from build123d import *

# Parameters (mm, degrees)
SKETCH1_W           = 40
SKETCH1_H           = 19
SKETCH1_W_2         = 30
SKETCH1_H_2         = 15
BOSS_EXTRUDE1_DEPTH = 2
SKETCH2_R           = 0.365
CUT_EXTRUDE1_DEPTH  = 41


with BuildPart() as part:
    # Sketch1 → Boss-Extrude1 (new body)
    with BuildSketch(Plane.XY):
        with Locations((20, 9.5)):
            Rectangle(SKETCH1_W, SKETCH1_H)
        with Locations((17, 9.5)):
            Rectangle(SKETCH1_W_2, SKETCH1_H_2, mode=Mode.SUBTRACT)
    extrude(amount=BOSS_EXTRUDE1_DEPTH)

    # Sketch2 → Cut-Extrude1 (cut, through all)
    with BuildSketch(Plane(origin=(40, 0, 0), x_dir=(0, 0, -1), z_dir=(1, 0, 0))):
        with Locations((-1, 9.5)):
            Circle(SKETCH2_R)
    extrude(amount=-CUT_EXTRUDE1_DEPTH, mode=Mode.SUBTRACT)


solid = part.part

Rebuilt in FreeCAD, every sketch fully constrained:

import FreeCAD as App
import Part
import Sketcher
from FreeCAD import Vector
Q = App.Units.Quantity

doc = App.newDocument("Part")
body = doc.addObject("PartDesign::Body", "Body")

# Sketch on XY plane
sketch1 = doc.addObject("Sketcher::SketchObject", "Sketch")
body.addObject(sketch1)
sketch1.AttachmentSupport = (doc.XY_Plane, [""])
sketch1.MapMode = "FlatFace"
sketch1.addGeometry(Part.LineSegment(Vector(0, 19, 0), Vector(0, 0, 0)), False)
sketch1.addGeometry(Part.LineSegment(Vector(0, 0, 0), Vector(40, 0, 0)), False)
sketch1.addGeometry(Part.LineSegment(Vector(40, 0, 0), Vector(40, 19, 0)), False)
sketch1.addGeometry(Part.LineSegment(Vector(40, 19, 0), Vector(0, 19, 0)), False)
sketch1.addGeometry(Part.LineSegment(Vector(32, 2, 0), Vector(2, 2, 0)), False)
sketch1.addGeometry(Part.LineSegment(Vector(2, 2, 0), Vector(2, 17, 0)), False)
sketch1.addGeometry(Part.LineSegment(Vector(2, 17, 0), Vector(32, 17, 0)), False)
sketch1.addGeometry(Part.LineSegment(Vector(32, 17, 0), Vector(32, 2, 0)), False)
sketch1.addConstraint(Sketcher.Constraint("Coincident", 0, 2, 1, 1))
sketch1.addConstraint(Sketcher.Constraint("Coincident", 1, 2, 2, 1))
sketch1.addConstraint(Sketcher.Constraint("Coincident", 2, 2, 3, 1))
sketch1.addConstraint(Sketcher.Constraint("Coincident", 3, 2, 0, 1))
sketch1.addConstraint(Sketcher.Constraint("Coincident", 4, 2, 5, 1))
sketch1.addConstraint(Sketcher.Constraint("Coincident", 5, 2, 6, 1))
sketch1.addConstraint(Sketcher.Constraint("Coincident", 6, 2, 7, 1))
sketch1.addConstraint(Sketcher.Constraint("Coincident", 7, 2, 4, 1))
sketch1.addConstraint(Sketcher.Constraint("Vertical", 0))
sketch1.addConstraint(Sketcher.Constraint("Horizontal", 1))
sketch1.addConstraint(Sketcher.Constraint("Vertical", 2))
sketch1.addConstraint(Sketcher.Constraint("Horizontal", 3))
sketch1.addConstraint(Sketcher.Constraint("Horizontal", 4))
sketch1.addConstraint(Sketcher.Constraint("Vertical", 5))
sketch1.addConstraint(Sketcher.Constraint("Horizontal", 6))
sketch1.addConstraint(Sketcher.Constraint("Vertical", 7))
sketch1.addConstraint(Sketcher.Constraint("Coincident", 0, 2, -1, 1))
sketch1.addConstraint(Sketcher.Constraint("DistanceX", 1, 1, 1, 2, Q("40 mm")))
sketch1.addConstraint(Sketcher.Constraint("DistanceX", 4, 2, 4, 1, Q("30 mm")))
sketch1.addConstraint(Sketcher.Constraint("DistanceY", 0, 2, 0, 1, Q("19 mm")))
sketch1.addConstraint(Sketcher.Constraint("DistanceY", 5, 1, 5, 2, Q("15 mm")))
sketch1.addConstraint(Sketcher.Constraint("DistanceX", -1, 1, 4, 2, Q("2 mm")))
sketch1.addConstraint(Sketcher.Constraint("DistanceY", -1, 1, 4, 2, Q("2 mm")))
pad1 = doc.addObject("PartDesign::Pad", "Pad")
body.addObject(pad1)
pad1.Profile = sketch1
pad1.Length = 2

# Sketch on YZ plane
sketch2 = doc.addObject("Sketcher::SketchObject", "Sketch001")
body.addObject(sketch2)
sketch2.AttachmentSupport = (doc.YZ_Plane, [""])
sketch2.MapMode = "FlatFace"
sketch2.AttachmentOffset = App.Placement(Vector(0, 0, 40), App.Rotation())
sketch2.addGeometry(Part.Circle(Vector(9.5, 1, 0), Vector(0, 0, 1), 0.365), False)
sketch2.addConstraint(Sketcher.Constraint("Diameter", 0, Q("0.73 mm")))
sketch2.addConstraint(Sketcher.Constraint("DistanceY", -1, 1, 0, 3, Q("1 mm")))
sketch2.addConstraint(Sketcher.Constraint("DistanceX", -1, 1, 0, 3, Q("9.5 mm")))
pocket1 = doc.addObject("PartDesign::Pocket", "Pocket")
body.addObject(pocket1)
pocket1.Profile = sketch2
pocket1.Type = "ThroughAll"

doc.recompute()
